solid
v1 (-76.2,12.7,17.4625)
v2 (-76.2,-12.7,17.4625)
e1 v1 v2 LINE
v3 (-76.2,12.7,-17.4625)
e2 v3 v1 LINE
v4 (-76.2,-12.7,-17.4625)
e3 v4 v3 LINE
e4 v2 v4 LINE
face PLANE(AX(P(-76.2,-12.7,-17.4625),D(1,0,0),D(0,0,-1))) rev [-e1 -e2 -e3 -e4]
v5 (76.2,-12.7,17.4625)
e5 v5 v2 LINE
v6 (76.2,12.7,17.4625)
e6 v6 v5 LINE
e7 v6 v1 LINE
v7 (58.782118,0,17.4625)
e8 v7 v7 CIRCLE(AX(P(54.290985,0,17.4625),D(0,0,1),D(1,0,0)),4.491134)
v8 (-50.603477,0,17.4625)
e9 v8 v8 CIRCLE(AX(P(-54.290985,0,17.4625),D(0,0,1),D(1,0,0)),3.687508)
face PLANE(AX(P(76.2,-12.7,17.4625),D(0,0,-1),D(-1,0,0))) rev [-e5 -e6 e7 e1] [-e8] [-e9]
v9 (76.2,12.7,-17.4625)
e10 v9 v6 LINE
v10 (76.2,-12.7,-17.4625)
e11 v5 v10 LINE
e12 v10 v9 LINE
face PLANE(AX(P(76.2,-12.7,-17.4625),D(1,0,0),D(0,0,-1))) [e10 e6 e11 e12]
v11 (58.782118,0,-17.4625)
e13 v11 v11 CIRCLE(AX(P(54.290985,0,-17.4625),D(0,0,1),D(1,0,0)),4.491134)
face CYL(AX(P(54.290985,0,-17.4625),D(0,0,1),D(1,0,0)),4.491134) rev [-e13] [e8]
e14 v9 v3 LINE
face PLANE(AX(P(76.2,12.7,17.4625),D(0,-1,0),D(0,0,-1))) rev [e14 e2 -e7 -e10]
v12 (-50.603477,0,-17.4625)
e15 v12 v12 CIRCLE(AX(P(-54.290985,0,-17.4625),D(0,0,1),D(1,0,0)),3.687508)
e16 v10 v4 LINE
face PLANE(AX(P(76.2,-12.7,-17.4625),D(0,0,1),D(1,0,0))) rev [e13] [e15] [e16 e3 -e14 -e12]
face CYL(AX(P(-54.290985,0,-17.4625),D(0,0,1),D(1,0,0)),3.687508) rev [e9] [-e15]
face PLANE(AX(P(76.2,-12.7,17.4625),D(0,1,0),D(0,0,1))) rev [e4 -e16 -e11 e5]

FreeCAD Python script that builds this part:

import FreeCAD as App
import Part
import Sketcher

V = App.Vector
Q = App.Units.Quantity

doc = App.newDocument("Part")
params = doc.addObject("Spreadsheet::Sheet", "Params")
for row, (alias, value) in enumerate([
    ("sketch1_width", "1 in"),
    ("sketch1_height", "1.375 in"),
    ("pad1_length", "6 in"),
], start=1):
    params.set(f"A{row}", alias)
    params.set(f"B{row}", "=" + value)
    params.setAlias(f"B{row}", alias)

body = doc.addObject("PartDesign::Body", "Body")

# Sketch on YZ plane
sketch1 = body.newObject("Sketcher::SketchObject", "Sketch")
sketch1.AttachmentSupport = (doc.getObject("YZ_Plane"), [""])
sketch1.MapMode = "FlatFace"
sketch1.addGeometry(Part.LineSegment(V(13, 17, 0), V(-13, 17, 0)), False)
sketch1.addGeometry(Part.LineSegment(V(-13, 17, 0), V(-13, -17, 0)), False)
sketch1.addGeometry(Part.LineSegment(V(-13, -17, 0), V(13, -17, 0)), False)
sketch1.addGeometry(Part.LineSegment(V(13, -17, 0), V(13, 17, 0)), False)
sketch1.addConstraint(Sketcher.Constraint("Coincident", 0, 2, 1, 1))
sketch1.addConstraint(Sketcher.Constraint("Coincident", 1, 2, 2, 1))
sketch1.addConstraint(Sketcher.Constraint("Coincident", 2, 2, 3, 1))
sketch1.addConstraint(Sketcher.Constraint("Coincident", 3, 2, 0, 1))
sketch1.addConstraint(Sketcher.Constraint("Horizontal", 0))
sketch1.addConstraint(Sketcher.Constraint("Vertical", 1))
sketch1.addConstraint(Sketcher.Constraint("Horizontal", 2))
sketch1.addConstraint(Sketcher.Constraint("Vertical", 3))
sketch1.addConstraint(Sketcher.Constraint("Symmetric", 0, 2, 2, 2, -1, 1))
sketch1.addConstraint(Sketcher.Constraint("DistanceX", 0, 2, 0, 1, Q("1 in")))
sketch1.addConstraint(Sketcher.Constraint("DistanceY", 1, 2, 1, 1, Q("1.375 in")))
sketch1.setExpression("Constraints[9]", "Params.sketch1_width")
sketch1.setExpression("Constraints[10]", "Params.sketch1_height")
pad1 = body.newObject("PartDesign::Pad", "Pad")
pad1.Profile = sketch1
pad1.setExpression("Length", "Params.pad1_length")
pad1.Midplane = True

# Sketch on XY plane
sketch2 = body.newObject("Sketcher::SketchObject", "Sketch001")
sketch2.AttachmentSupport = (doc.getObject("XY_Plane"), [""])
sketch2.MapMode = "FlatFace"
sketch2.AttachmentOffset = App.Placement(V(0, 0, 0.6875 * 25.4), App.Rotation())
sketch2.addGeometry(Part.Circle(V(-54.3, 0, 0), V(0, 0, 1), 3.7), False)
sketch2.addGeometry(Part.Circle(V(54.3, 0, 0), V(0, 0, 1), 4.5), False)
sketch2.addConstraint(Sketcher.Constraint("Symmetric", 0, 3, 1, 3, -1, 1))
sketch2.addConstraint(Sketcher.Constraint("PointOnObject", 0, 3, -1))
sketch2.addConstraint(Sketcher.Constraint("Diameter", 0, 7.375016))
sketch2.addConstraint(Sketcher.Constraint("Diameter", 1, 8.982267))
sketch2.addConstraint(Sketcher.Constraint("DistanceX", 0, 3, 1, 3, 108.581969))
pocket1 = body.newObject("PartDesign::Pocket", "Pocket")
pocket1.Profile = sketch2
pocket1.Type = "ThroughAll"

doc.recompute()
